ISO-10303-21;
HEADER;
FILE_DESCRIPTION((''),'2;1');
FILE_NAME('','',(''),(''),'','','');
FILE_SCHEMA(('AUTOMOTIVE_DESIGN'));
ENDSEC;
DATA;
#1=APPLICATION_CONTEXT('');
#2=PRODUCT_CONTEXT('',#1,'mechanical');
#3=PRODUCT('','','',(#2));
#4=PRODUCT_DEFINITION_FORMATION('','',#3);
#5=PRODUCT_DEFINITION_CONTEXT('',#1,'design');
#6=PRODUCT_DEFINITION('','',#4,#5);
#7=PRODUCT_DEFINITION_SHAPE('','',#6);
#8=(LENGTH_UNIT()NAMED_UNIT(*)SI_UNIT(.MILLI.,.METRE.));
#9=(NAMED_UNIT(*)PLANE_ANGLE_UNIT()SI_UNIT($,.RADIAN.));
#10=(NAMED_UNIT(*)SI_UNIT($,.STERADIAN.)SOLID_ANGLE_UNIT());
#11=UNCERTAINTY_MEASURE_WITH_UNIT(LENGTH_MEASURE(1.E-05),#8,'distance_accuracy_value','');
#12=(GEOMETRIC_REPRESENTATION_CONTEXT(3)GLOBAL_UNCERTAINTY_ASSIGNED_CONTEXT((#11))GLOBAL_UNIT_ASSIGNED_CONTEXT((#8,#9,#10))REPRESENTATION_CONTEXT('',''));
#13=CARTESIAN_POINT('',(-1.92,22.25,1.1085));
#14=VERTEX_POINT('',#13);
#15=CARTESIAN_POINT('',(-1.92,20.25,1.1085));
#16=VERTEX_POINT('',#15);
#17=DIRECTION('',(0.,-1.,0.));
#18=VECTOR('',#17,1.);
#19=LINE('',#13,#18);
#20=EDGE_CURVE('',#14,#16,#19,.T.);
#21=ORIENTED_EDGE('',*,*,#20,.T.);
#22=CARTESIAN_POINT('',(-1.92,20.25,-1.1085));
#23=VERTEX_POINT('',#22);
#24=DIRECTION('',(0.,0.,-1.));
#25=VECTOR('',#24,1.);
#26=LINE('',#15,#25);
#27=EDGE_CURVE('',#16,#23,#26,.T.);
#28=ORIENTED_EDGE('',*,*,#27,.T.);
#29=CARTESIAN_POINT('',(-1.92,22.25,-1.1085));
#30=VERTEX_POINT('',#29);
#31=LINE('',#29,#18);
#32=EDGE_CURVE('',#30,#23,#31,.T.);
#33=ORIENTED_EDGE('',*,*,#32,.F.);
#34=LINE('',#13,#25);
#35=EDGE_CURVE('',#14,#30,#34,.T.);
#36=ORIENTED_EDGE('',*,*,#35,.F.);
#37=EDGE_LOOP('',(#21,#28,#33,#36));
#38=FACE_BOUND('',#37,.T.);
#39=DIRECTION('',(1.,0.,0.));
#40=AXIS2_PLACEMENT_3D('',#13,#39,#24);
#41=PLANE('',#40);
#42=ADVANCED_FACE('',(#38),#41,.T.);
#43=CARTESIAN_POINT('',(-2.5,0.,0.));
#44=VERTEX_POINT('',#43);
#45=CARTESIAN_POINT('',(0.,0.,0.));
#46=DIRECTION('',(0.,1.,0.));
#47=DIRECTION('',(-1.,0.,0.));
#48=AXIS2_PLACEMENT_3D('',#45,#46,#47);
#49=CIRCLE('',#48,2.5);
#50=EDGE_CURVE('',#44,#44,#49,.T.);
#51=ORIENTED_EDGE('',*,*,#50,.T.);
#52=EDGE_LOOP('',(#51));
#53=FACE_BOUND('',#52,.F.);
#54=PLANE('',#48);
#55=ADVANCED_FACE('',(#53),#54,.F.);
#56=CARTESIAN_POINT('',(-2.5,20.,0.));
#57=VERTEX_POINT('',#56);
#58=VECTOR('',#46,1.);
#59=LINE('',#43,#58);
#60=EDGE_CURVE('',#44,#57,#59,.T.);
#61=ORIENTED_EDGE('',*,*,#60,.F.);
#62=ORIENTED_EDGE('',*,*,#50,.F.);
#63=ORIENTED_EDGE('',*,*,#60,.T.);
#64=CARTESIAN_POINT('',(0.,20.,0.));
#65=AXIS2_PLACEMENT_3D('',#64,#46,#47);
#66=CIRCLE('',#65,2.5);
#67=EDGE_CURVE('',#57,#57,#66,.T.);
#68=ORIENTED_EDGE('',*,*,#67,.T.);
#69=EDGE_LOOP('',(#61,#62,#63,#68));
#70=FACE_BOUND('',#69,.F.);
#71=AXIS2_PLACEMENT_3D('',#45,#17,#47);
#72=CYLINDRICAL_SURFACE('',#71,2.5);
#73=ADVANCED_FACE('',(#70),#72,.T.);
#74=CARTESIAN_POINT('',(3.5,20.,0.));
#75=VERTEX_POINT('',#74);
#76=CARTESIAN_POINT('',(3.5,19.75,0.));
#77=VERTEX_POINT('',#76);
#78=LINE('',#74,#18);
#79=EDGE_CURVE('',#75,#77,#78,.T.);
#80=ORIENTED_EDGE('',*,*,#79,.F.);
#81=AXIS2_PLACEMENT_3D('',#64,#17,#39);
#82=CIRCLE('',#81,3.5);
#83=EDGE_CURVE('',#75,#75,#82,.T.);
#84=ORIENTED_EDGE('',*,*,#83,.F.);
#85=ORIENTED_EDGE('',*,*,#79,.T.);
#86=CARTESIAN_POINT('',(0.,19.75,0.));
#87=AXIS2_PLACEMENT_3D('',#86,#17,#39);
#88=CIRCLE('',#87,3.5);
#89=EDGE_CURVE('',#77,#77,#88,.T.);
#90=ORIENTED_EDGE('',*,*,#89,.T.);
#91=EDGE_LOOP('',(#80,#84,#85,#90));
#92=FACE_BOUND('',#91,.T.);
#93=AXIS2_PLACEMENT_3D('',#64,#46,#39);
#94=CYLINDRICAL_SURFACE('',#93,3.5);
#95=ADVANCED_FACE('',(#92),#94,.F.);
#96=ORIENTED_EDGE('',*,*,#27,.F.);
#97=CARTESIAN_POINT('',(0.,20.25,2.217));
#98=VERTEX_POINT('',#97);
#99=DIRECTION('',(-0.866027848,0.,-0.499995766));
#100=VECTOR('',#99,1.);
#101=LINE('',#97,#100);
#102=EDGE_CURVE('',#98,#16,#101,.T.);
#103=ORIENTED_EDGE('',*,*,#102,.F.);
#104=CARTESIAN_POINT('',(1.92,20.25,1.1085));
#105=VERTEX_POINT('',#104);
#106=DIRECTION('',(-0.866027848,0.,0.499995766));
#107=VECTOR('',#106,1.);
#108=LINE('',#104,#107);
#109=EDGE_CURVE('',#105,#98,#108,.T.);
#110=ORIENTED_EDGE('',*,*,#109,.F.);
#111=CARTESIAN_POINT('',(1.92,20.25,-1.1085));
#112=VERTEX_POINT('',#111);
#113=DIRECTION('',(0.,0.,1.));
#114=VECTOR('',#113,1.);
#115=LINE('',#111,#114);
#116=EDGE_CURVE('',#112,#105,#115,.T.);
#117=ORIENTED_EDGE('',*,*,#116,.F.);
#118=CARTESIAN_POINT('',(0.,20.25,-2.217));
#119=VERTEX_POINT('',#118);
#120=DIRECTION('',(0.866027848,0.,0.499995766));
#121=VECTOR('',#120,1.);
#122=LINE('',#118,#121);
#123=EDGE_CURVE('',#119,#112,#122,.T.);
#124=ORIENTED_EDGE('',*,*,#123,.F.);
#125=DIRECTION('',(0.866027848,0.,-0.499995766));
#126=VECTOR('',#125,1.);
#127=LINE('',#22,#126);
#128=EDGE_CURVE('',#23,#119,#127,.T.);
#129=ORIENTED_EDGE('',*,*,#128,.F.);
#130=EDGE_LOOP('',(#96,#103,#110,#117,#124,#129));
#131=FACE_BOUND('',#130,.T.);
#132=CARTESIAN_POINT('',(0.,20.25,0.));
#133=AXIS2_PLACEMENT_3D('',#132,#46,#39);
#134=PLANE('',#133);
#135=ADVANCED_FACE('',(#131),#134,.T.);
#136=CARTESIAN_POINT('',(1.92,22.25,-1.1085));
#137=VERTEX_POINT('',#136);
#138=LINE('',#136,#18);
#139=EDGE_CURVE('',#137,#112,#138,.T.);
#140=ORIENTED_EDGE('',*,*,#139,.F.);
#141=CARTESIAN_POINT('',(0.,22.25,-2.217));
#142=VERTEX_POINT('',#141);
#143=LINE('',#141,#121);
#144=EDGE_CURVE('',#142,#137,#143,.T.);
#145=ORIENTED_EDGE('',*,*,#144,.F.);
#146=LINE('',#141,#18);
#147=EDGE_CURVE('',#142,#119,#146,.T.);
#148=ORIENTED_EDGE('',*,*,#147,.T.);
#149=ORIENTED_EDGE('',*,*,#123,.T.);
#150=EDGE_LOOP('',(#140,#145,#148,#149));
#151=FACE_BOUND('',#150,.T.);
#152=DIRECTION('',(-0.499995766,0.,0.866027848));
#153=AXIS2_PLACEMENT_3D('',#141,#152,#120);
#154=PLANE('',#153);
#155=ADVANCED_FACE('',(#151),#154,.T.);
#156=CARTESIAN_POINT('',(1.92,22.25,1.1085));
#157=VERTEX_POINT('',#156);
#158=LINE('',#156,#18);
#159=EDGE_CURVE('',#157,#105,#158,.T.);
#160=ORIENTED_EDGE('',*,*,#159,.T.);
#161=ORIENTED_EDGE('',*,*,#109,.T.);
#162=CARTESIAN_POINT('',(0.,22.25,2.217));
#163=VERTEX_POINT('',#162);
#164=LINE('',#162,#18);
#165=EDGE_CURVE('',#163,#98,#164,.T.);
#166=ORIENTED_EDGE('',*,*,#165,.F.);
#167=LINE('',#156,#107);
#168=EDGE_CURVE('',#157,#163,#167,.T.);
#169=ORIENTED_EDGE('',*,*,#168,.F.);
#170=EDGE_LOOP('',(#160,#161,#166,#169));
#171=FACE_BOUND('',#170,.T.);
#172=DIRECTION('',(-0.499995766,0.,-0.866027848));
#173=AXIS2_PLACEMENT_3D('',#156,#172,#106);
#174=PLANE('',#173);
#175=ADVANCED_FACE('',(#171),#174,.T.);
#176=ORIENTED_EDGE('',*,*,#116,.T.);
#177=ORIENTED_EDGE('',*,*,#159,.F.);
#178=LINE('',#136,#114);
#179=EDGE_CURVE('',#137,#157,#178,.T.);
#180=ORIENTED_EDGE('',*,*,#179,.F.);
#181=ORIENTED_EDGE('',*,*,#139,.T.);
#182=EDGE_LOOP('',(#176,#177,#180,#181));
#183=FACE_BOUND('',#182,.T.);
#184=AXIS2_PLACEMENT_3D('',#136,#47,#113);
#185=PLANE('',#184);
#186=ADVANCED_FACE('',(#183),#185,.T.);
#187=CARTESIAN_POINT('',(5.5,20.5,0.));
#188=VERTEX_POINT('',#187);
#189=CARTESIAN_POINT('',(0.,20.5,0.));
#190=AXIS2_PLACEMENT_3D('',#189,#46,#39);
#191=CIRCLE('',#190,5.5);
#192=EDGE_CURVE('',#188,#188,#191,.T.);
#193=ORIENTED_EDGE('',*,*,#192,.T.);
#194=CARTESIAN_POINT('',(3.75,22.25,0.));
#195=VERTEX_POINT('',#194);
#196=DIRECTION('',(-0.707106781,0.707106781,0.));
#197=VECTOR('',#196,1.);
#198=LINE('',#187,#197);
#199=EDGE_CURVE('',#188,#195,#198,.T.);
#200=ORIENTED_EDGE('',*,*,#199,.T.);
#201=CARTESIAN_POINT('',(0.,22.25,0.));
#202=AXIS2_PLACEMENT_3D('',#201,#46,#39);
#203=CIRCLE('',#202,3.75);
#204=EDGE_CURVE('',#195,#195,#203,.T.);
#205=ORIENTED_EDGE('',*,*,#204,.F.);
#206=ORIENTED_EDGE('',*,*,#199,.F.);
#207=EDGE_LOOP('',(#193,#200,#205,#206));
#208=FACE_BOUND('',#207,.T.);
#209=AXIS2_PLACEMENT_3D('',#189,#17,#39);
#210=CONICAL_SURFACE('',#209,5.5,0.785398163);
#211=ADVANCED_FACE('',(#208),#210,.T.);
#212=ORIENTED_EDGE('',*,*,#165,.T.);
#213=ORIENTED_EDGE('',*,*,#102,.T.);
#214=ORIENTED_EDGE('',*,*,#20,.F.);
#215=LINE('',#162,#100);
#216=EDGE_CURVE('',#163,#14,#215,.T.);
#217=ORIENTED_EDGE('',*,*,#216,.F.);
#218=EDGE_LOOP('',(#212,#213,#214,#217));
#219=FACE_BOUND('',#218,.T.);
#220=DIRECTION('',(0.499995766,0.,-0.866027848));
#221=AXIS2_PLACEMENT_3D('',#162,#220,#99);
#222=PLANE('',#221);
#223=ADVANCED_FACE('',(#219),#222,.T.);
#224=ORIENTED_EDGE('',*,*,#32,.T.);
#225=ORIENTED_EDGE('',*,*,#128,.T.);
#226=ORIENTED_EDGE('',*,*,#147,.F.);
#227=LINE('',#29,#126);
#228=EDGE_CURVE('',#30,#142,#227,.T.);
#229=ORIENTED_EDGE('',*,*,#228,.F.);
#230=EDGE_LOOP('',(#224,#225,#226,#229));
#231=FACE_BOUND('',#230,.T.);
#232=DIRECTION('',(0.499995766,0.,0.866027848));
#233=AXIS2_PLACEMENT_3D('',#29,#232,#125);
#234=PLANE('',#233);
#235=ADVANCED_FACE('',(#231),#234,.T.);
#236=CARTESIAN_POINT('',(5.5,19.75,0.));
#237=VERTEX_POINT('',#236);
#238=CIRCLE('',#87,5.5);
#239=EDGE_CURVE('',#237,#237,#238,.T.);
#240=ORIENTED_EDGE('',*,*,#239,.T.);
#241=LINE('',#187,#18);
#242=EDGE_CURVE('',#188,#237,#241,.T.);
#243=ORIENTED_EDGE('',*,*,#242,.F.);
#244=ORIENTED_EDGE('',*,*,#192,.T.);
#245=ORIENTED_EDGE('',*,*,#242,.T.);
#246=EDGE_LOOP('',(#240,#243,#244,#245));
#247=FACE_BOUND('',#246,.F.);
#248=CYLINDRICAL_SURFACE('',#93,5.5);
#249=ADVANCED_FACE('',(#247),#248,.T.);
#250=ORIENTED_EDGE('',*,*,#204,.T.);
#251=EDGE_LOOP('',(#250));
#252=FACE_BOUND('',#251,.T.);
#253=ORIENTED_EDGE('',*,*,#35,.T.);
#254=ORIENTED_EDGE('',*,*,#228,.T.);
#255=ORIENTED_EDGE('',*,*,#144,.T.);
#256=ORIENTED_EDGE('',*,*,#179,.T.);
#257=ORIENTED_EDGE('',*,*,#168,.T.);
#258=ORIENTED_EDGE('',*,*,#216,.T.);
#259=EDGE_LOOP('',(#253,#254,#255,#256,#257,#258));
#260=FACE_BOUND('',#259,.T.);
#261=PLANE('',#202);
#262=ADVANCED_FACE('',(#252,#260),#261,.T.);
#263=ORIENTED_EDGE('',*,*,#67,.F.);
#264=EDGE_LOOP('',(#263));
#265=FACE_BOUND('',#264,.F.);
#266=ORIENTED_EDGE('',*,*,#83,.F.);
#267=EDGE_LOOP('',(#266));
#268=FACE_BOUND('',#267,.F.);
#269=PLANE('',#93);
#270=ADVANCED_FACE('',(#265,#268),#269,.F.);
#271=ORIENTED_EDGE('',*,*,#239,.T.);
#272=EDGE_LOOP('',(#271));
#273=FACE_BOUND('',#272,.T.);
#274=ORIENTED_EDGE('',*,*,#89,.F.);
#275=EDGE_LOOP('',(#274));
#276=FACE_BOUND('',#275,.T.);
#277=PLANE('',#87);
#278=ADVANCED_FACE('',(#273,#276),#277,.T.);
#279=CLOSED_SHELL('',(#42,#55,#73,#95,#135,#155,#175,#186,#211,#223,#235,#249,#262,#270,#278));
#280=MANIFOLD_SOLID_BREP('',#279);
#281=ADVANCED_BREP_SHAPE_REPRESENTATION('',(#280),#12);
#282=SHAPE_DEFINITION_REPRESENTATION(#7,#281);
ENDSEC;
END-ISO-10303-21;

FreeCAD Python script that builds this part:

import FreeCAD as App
import Part
import Sketcher
from FreeCAD import Vector
Q = App.Units.Quantity


def edges_at(feature, points):
    """Names of the edges that pass closest to the given points."""
    edges = feature.Shape.Edges
    near = lambda p: min(range(len(edges)), key=lambda i: edges[i].distToShape(Part.Vertex(*p))[0])
    return sorted({f"Edge{near(p) + 1}" for p in points})

doc = App.newDocument("Part")
body = doc.addObject("PartDesign::Body", "Body")

sketch1 = doc.addObject("Sketcher::SketchObject", "Sketch")
body.addObject(sketch1)
sketch1.AttachmentSupport = (doc.XZ_Plane, [""])
sketch1.MapMode = "FlatFace"
sketch1.addGeometry(Part.Circle(Vector(0, 0, 0), Vector(0, 0, 1), 2.5), False)
sketch1.addConstraint(Sketcher.Constraint("Coincident", 0, 3, -1, 1))
sketch1.addConstraint(Sketcher.Constraint("Diameter", 0, 5.0))
pad1 = doc.addObject("PartDesign::Pad", "Pad")
body.addObject(pad1)
pad1.Profile = sketch1
pad1.Length = 20
pad1.Reversed = True

sketch2 = doc.addObject("Sketcher::SketchObject", "Sketch001")
body.addObject(sketch2)
sketch2.AttachmentSupport = (doc.XZ_Plane, [""])
sketch2.MapMode = "FlatFace"
sketch2.AttachmentOffset = App.Placement(Vector(0, 0, -20), App.Rotation())
sketch2.addGeometry(Part.Circle(Vector(0, 0, 0), Vector(0, 0, 1), 6), False)
sketch2.addConstraint(Sketcher.Constraint("Coincident", 0, 3, -1, 1))
sketch2.addConstraint(Sketcher.Constraint("Diameter", 0, 11.0))
pad2 = doc.addObject("PartDesign::Pad", "Pad001")
body.addObject(pad2)
pad2.Profile = sketch2
pad2.Length = 2.25
pad2.Reversed = True
doc.recompute()

chamfer = doc.addObject("PartDesign::Chamfer", "Chamfer")
body.addObject(chamfer)
chamfer.Base = (pad2, edges_at(pad2, [(-5.5, 22.25, 0)]))
chamfer.Size = 1.75

sketch3 = doc.addObject("Sketcher::SketchObject", "Sketch002")
body.addObject(sketch3)
sketch3.AttachmentSupport = (doc.XZ_Plane, [""])
sketch3.MapMode = "FlatFace"
sketch3.AttachmentOffset = App.Placement(Vector(0, 0, -20), App.Rotation())
sketch3.addGeometry(Part.Circle(Vector(0, 0, 0), Vector(0, 0, 1), 5.5), False)
sketch3.addGeometry(Part.Circle(Vector(0, 0, 0), Vector(0, 0, 1), 3.5), False)
sketch3.addConstraint(Sketcher.Constraint("Coincident", 0, 3, -1, 1))
sketch3.addConstraint(Sketcher.Constraint("Coincident", 1, 3, -1, 1))
sketch3.addConstraint(Sketcher.Constraint("Diameter", 1, 7.0))
sketch3.addConstraint(Sketcher.Constraint("Diameter", 0, 11.0))
pad3 = doc.addObject("PartDesign::Pad", "Pad002")
body.addObject(pad3)
pad3.Profile = sketch3
pad3.Length = 0.25

sketch4 = doc.addObject("Sketcher::SketchObject", "Sketch003")
body.addObject(sketch4)
sketch4.AttachmentSupport = (doc.XZ_Plane, [""])
sketch4.MapMode = "FlatFace"
sketch4.AttachmentOffset = App.Placement(Vector(0, 0, -22.25), App.Rotation())
sketch4.addGeometry(Part.LineSegment(Vector(1.9, -1.1, 0), Vector(0, -2.2, 0)), False)
sketch4.addGeometry(Part.LineSegment(Vector(0, -2.2, 0), Vector(-1.9, -1.1, 0)), False)
sketch4.addGeometry(Part.LineSegment(Vector(-1.9, -1.1, 0), Vector(-1.9, 1.1, 0)), False)
sketch4.addGeometry(Part.LineSegment(Vector(-1.9, 1.1, 0), Vector(0, 2.2, 0)), False)
sketch4.addGeometry(Part.LineSegment(Vector(0, 2.2, 0), Vector(1.9, 1.1, 0)), False)
sketch4.addGeometry(Part.LineSegment(Vector(1.9, 1.1, 0), Vector(1.9, -1.1, 0)), False)
sketch4.addConstraint(Sketcher.Constraint("Coincident", 0, 2, 1, 1))
sketch4.addConstraint(Sketcher.Constraint("Coincident", 1, 2, 2, 1))
sketch4.addConstraint(Sketcher.Constraint("Coincident", 2, 2, 3, 1))
sketch4.addConstraint(Sketcher.Constraint("Coincident", 3, 2, 4, 1))
sketch4.addConstraint(Sketcher.Constraint("Coincident", 4, 2, 5, 1))
sketch4.addConstraint(Sketcher.Constraint("Coincident", 5, 2, 0, 1))
sketch4.addConstraint(Sketcher.Constraint("Vertical", 2))
sketch4.addConstraint(Sketcher.Constraint("Vertical", 5))
sketch4.addConstraint(Sketcher.Constraint("Symmetric", 0, 2, 3, 2, -1, 1))
sketch4.addConstraint(Sketcher.Constraint("Symmetric", 1, 2, 4, 2, -1, 1))
sketch4.addConstraint(Sketcher.Constraint("PointOnObject", 0, 2, -2))
sketch4.addConstraint(Sketcher.Constraint("Parallel", 0, 3))
sketch4.addConstraint(Sketcher.Constraint("Horizontal", 2, 2, 4, 2))
sketch4.addConstraint(Sketcher.Constraint("DistanceX", 1, 2, -1, 1, 1.92))
sketch4.addConstraint(Sketcher.Constraint("Angle", 0, Q("-150.0003 deg")))
sketch4.addConstraint(Sketcher.Constraint("DistanceY", 2, 1, 2, 2, 2.217))
pocket1 = doc.addObject("PartDesign::Pocket", "Pocket")
body.addObject(pocket1)
pocket1.Profile = sketch4
pocket1.Length = 2
pocket1.Reversed = True

doc.recompute()
